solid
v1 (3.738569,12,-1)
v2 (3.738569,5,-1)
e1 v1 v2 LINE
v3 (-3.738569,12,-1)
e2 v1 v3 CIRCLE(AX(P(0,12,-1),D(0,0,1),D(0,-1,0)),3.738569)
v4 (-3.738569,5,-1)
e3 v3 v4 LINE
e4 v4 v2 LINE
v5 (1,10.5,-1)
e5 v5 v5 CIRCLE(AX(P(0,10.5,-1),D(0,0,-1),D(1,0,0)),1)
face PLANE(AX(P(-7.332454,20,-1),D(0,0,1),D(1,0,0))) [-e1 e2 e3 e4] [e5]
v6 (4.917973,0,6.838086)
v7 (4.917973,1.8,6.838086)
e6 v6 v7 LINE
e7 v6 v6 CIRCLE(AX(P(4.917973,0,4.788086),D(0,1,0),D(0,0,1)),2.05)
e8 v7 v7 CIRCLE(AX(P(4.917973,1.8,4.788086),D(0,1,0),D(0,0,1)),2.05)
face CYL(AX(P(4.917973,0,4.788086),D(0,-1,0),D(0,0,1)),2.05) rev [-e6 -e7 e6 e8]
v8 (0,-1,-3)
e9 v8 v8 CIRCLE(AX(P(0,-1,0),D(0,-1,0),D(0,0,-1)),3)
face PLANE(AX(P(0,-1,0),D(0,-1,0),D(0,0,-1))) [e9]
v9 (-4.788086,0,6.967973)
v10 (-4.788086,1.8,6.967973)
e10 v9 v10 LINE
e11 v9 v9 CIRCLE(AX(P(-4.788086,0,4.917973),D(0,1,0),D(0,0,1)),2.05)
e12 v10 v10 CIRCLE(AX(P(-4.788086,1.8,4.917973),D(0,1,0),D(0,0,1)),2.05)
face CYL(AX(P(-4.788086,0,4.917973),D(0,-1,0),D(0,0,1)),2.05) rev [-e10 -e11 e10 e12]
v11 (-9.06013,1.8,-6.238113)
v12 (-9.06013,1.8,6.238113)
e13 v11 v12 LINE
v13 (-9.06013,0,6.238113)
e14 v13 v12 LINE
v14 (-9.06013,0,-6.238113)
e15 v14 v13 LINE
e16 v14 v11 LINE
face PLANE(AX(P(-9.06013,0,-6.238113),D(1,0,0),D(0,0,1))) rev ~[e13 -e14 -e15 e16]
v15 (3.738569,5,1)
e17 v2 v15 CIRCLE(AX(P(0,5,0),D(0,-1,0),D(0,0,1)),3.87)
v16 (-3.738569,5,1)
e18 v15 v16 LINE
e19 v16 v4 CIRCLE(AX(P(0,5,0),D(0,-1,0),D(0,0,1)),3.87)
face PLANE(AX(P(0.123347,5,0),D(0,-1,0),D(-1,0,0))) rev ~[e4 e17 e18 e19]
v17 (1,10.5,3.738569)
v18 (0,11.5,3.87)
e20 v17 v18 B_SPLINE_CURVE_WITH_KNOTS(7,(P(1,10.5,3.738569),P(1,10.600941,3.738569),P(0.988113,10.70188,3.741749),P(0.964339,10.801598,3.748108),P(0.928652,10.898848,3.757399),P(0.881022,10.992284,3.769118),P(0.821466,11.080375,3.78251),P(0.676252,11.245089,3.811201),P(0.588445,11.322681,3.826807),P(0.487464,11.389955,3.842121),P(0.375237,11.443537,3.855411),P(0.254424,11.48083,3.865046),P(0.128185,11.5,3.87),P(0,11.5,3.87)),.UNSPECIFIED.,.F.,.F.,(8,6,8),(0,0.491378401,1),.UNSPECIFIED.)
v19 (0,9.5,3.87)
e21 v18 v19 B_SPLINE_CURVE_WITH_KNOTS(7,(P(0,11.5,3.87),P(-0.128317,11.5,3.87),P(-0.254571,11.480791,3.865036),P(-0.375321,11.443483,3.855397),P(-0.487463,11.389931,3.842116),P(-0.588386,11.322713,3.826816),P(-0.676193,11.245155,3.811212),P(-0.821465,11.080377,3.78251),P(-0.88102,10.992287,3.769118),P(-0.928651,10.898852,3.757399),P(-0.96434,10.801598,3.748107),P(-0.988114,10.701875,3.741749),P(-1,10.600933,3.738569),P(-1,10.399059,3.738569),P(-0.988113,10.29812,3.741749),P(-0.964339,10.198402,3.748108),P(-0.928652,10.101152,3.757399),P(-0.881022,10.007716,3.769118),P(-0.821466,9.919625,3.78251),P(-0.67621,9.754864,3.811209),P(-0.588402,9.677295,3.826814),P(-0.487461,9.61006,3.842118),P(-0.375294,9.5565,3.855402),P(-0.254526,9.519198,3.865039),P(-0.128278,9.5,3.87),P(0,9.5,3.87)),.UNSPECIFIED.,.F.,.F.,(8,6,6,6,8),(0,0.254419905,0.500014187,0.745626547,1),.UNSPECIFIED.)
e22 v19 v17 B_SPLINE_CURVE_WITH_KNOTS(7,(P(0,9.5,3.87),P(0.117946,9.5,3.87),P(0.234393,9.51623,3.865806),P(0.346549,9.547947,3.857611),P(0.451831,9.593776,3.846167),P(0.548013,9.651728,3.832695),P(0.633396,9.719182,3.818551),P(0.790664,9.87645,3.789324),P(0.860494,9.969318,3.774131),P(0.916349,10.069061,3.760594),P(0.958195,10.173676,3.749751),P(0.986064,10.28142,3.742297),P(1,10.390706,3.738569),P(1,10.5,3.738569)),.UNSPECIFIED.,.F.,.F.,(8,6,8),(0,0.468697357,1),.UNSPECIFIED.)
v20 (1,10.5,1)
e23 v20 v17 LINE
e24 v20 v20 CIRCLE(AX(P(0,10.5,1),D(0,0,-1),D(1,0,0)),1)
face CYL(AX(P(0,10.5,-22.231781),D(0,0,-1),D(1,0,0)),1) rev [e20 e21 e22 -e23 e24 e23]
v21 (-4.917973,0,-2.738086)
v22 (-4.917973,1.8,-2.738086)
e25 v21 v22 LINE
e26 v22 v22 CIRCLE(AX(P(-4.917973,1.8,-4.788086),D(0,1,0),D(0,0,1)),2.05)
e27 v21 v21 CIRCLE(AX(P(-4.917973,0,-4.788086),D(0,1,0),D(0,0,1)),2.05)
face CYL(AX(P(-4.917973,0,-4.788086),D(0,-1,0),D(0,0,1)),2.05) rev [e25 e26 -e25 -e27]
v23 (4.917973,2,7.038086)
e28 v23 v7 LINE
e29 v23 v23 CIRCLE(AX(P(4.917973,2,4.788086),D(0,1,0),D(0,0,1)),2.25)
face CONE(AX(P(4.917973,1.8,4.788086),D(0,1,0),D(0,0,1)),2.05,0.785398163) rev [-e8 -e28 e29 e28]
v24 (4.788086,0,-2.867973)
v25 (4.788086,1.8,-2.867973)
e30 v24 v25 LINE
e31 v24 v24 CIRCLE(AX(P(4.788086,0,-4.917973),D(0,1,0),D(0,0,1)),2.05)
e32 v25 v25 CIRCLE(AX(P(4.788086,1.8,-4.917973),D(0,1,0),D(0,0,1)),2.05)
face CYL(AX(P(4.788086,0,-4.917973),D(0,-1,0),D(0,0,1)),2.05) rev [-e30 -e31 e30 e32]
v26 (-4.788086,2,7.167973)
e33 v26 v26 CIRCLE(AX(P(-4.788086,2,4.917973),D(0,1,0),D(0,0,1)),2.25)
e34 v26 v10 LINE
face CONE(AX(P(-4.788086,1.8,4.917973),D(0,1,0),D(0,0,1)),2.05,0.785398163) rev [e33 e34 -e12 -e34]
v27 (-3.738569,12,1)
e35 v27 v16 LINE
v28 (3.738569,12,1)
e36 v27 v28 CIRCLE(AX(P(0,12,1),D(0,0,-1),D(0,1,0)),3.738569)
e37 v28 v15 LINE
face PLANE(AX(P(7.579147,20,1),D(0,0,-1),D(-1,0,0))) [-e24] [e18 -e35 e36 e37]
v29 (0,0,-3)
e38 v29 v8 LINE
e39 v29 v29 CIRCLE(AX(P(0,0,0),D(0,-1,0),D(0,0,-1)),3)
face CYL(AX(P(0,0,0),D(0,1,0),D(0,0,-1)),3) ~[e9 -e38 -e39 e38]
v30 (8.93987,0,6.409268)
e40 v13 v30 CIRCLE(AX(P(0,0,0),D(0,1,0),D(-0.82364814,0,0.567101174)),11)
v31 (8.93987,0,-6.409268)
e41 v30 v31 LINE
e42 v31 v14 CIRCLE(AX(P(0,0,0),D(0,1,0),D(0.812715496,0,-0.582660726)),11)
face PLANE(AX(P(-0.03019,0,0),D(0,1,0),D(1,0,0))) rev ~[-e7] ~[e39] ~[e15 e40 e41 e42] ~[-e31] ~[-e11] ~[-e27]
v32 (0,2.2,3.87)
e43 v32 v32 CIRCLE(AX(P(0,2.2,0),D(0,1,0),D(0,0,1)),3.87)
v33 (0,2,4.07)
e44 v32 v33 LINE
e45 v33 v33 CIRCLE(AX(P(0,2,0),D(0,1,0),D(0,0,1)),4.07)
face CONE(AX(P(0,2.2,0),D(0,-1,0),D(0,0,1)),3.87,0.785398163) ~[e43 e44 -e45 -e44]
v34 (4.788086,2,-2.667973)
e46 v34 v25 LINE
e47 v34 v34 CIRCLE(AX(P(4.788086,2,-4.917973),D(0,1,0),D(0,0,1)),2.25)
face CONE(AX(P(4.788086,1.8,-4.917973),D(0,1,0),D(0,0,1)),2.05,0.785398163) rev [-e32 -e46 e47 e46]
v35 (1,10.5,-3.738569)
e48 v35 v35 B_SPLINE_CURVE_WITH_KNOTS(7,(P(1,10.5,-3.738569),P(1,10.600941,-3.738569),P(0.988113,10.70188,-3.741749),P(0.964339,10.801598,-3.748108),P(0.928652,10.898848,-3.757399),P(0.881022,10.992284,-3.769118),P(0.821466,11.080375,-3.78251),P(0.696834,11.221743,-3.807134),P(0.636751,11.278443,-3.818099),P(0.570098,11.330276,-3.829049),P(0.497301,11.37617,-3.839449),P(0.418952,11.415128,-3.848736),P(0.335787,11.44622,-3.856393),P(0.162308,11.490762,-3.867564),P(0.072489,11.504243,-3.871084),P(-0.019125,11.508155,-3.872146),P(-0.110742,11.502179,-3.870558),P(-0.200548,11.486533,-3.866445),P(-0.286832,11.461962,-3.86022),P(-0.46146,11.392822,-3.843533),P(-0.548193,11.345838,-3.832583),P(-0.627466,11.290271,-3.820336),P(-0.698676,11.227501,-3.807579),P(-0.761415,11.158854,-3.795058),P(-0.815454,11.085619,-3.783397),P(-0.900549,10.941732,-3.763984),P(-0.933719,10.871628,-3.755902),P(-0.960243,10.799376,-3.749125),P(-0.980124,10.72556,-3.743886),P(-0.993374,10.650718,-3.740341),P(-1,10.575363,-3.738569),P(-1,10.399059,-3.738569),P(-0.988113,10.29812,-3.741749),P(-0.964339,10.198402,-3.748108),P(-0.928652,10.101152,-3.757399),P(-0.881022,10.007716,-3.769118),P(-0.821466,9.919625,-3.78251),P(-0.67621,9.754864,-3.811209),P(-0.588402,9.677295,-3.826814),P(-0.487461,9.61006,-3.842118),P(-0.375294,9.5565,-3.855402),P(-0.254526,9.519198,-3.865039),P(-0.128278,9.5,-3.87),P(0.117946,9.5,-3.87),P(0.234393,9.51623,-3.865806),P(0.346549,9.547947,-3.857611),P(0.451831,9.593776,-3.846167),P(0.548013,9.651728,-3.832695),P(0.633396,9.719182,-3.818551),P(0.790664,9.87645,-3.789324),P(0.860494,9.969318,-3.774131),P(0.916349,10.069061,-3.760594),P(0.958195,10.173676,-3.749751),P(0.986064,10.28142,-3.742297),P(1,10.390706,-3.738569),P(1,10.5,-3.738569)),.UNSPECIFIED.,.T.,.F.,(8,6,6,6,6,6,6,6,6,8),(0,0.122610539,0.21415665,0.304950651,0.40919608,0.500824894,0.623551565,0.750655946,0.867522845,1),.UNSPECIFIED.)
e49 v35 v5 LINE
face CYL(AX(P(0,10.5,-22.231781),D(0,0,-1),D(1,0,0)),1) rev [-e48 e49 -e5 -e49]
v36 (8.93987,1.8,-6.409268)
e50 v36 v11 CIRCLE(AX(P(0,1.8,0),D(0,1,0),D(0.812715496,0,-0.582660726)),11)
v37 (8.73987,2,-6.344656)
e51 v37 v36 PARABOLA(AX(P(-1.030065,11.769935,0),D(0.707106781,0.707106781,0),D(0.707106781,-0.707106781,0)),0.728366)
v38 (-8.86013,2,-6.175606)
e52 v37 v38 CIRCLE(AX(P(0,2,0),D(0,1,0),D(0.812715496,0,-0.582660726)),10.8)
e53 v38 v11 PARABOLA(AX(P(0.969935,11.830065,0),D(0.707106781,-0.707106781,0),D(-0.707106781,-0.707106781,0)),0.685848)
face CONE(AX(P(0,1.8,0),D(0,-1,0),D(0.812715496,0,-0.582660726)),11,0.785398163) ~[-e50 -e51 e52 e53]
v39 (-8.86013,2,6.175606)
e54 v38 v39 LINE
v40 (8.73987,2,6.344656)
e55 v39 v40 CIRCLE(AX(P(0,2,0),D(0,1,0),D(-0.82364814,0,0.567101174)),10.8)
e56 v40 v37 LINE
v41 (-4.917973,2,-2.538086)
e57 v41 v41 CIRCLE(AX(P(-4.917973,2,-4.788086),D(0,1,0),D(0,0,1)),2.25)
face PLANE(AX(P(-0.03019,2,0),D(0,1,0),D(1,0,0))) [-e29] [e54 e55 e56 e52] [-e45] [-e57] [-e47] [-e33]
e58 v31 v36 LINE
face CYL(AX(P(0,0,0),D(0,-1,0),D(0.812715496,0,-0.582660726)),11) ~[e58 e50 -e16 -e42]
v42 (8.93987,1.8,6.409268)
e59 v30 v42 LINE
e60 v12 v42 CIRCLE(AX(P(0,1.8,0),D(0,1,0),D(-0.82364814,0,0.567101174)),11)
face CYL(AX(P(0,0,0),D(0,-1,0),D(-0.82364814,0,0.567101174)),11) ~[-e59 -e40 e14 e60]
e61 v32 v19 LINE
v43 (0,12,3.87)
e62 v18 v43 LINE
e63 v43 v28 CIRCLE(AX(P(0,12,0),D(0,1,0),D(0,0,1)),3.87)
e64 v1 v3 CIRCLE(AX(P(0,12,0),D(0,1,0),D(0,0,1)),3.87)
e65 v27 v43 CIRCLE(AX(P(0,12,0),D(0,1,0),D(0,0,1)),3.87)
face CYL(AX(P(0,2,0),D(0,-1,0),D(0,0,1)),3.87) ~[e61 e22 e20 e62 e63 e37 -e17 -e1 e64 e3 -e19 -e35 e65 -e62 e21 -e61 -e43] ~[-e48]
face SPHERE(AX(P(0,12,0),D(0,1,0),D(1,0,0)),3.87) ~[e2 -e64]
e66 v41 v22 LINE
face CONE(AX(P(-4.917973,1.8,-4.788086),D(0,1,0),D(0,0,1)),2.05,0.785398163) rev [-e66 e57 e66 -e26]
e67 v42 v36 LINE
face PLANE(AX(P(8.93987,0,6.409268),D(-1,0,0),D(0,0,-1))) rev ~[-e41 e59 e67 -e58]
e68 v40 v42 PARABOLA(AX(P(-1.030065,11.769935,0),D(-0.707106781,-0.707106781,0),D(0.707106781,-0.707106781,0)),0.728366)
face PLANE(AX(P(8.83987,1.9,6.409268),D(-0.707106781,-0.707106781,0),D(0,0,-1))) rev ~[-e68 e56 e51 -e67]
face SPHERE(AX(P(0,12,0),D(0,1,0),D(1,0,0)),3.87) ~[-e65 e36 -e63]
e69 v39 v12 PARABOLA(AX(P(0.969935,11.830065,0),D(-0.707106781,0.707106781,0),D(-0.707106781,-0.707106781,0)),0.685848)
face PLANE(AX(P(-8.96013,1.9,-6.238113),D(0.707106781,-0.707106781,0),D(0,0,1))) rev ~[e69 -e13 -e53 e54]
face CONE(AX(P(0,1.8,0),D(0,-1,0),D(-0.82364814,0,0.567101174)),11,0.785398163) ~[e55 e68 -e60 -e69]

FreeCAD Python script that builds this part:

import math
import FreeCAD as App
import Part
import Sketcher
from FreeCAD import Vector
Q = App.Units.Quantity


def edges_at(feature, points):
    """Names of the edges that pass closest to the given points."""
    edges = feature.Shape.Edges
    near = lambda p: min(range(len(edges)), key=lambda i: edges[i].distToShape(Part.Vertex(*p))[0])
    return sorted({f"Edge{near(p) + 1}" for p in points})

doc = App.newDocument("Part")
params = doc.addObject("Spreadsheet::Sheet", "Params")
for row, (alias, value) in enumerate([
    ("sketch1_radius", "11 mm"),
    ("sketch1_diameter", "4.1 mm"),
    ("pad1_length", "2 mm"),
    ("sketch2_diameter", "7.74 mm"),
    ("pad2_length", "10 mm"),
    ("sketch3_radius", "3.87 mm"),
    ("revolution_angle", "360 deg"),
    ("sketch4_diameter", "6 mm"),
    ("pad3_length", "1 mm"),
    ("sketch5_radius", "1 mm"),
    ("pocket1_length", "15 mm"),
    ("sketch6_diameter", "2 mm"),
    ("chamfer_size", "0.2 mm"),
], start=1):
    params.set(f"A{row}", alias)
    params.set(f"B{row}", "=" + value)
    params.setAlias(f"B{row}", alias)

body = doc.addObject("PartDesign::Body", "Body")

sketch1 = body.newObject("Sketcher::SketchObject", "Sketch")
sketch1.AttachmentSupport = (doc.getObject("XZ_Plane"), [""])
sketch1.MapMode = "FlatFace"
sketch1.addGeometry(Part.LineSegment(Vector(-9.06013, -6.238113, 0), Vector(-9.06013, 6.238113, 0)), False)
sketch1.addGeometry(Part.ArcOfCircle(Part.Circle(Vector(0, 0, 0), Vector(0, 0, 1), 11), math.radians(35.637902), math.radians(145.451672)), False)
sketch1.addGeometry(Part.LineSegment(Vector(8.93987, 6.409268, 0), Vector(8.93987, -6.409268, 0)), False)
sketch1.addGeometry(Part.ArcOfCircle(Part.Circle(Vector(0, 0, 0), Vector(0, 0, 1), 11), math.radians(-145.451672), math.radians(-35.637902)), False)
sketch1.addGeometry(Part.Circle(Vector(-4.788086, 4.917973, 0), Vector(0, 0, 1), 2.05), False)
sketch1.addGeometry(Part.Circle(Vector(4.917973, 4.788086, 0), Vector(0, 0, 1), 2.05), False)
sketch1.addGeometry(Part.Circle(Vector(-4.917973, -4.788086, 0), Vector(0, 0, 1), 2.05), False)
sketch1.addGeometry(Part.Circle(Vector(4.788086, -4.917973, 0), Vector(0, 0, 1), 2.05), False)
sketch1.addConstraint(Sketcher.Constraint("Coincident", 0, 2, 1, 2))
sketch1.addConstraint(Sketcher.Constraint("Coincident", 1, 1, 2, 1))
sketch1.addConstraint(Sketcher.Constraint("Coincident", 2, 2, 3, 2))
sketch1.addConstraint(Sketcher.Constraint("Coincident", 3, 1, 0, 1))
sketch1.addConstraint(Sketcher.Constraint("Vertical", 0))
sketch1.addConstraint(Sketcher.Constraint("Vertical", 2))
sketch1.addConstraint(Sketcher.Constraint("Coincident", 1, 3, -1, 1))
sketch1.addConstraint(Sketcher.Constraint("Coincident", 3, 3, -1, 1))
sketch1.addConstraint(Sketcher.Constraint("Equal", 1, 3))
sketch1.addConstraint(Sketcher.Constraint("Equal", 4, 5))
sketch1.addConstraint(Sketcher.Constraint("Equal", 5, 6))
sketch1.addConstraint(Sketcher.Constraint("Equal", 6, 7))
sketch1.addConstraint(Sketcher.Constraint("Symmetric", 5, 3, 6, 3, -1, 1))
sketch1.addConstraint(Sketcher.Constraint("Symmetric", 4, 3, 7, 3, -1, 1))
sketch1.addConstraint(Sketcher.Constraint("Radius", 1, Q("11 mm")))
sketch1.addConstraint(Sketcher.Constraint("Diameter", 4, Q("4.1 mm")))
sketch1.addConstraint(Sketcher.Constraint("DistanceY", 6, 3, 0, 2, Q("11.026199 mm")))
sketch1.addConstraint(Sketcher.Constraint("DistanceY", 0, 1, 0, 2, Q("12.476226 mm")))
sketch1.addConstraint(Sketcher.Constraint("DistanceY", 2, 2, 2, 1, Q("12.818536 mm")))
sketch1.addConstraint(Sketcher.Constraint("DistanceX", 4, 3, 5, 3, Q("9.706059 mm")))
sketch1.addConstraint(Sketcher.Constraint("DistanceY", 6, 3, 4, 3, Q("9.706059 mm")))
sketch1.addConstraint(Sketcher.Constraint("DistanceX", 4, 3, -1, 1, Q("4.788086 mm")))
sketch1.setExpression("Constraints[14]", "Params.sketch1_radius")
sketch1.setExpression("Constraints[15]", "Params.sketch1_diameter")
pad1 = body.newObject("PartDesign::Pad", "Pad")
pad1.Profile = sketch1
pad1.setExpression("Length", "Params.pad1_length")
pad1.Reversed = True

sketch2 = body.newObject("Sketcher::SketchObject", "Sketch001")
sketch2.AttachmentSupport = (doc.getObject("XZ_Plane"), [""])
sketch2.MapMode = "FlatFace"
sketch2.AttachmentOffset = App.Placement(Vector(0, 0, -2), App.Rotation())
sketch2.addGeometry(Part.Circle(Vector(0, 0, 0), Vector(0, 0, 1), 3.87), False)
sketch2.addConstraint(Sketcher.Constraint("Coincident", 0, 3, -1, 1))
sketch2.addConstraint(Sketcher.Constraint("Diameter", 0, Q("7.74 mm")))
sketch2.setExpression("Constraints[1]", "Params.sketch2_diameter")
pad2 = body.newObject("PartDesign::Pad", "Pad001")
pad2.Profile = sketch2
pad2.setExpression("Length", "Params.pad2_length")
pad2.Reversed = True

sketch3 = body.newObject("Sketcher::SketchObject", "Sketch002")
sketch3.AttachmentSupport = (doc.getObject("XY_Plane"), [""])
sketch3.MapMode = "FlatFace"
sketch3.addGeometry(Part.LineSegment(Vector(0, 15.87, 0), Vector(0, 12, 0)), False)
sketch3.addGeometry(Part.LineSegment(Vector(0, 12, 0), Vector(3.87, 12, 0)), False)
sketch3.addGeometry(Part.ArcOfCircle(Part.Circle(Vector(0, 12, 0), Vector(0, 0, 1), 3.87), math.radians(0), math.radians(90)), False)
sketch3.addConstraint(Sketcher.Constraint("Coincident", 0, 2, 1, 1))
sketch3.addConstraint(Sketcher.Constraint("Coincident", 1, 2, 2, 1))
sketch3.addConstraint(Sketcher.Constraint("Coincident", 2, 2, 0, 1))
sketch3.addConstraint(Sketcher.Constraint("Vertical", 0))
sketch3.addConstraint(Sketcher.Constraint("Horizontal", 1))
sketch3.addConstraint(Sketcher.Constraint("Coincident", 0, 2, 2, 3))
sketch3.addConstraint(Sketcher.Constraint("PointOnObject", 2, 3, -2))
sketch3.addConstraint(Sketcher.Constraint("Radius", 2, Q("3.87 mm")))
sketch3.addConstraint(Sketcher.Constraint("DistanceY", -1, 1, 2, 3, Q("12 mm")))
sketch3.setExpression("Constraints[7]", "Params.sketch3_radius")
revolution = body.newObject("PartDesign::Revolution", "Revolution")
revolution.Profile = sketch3
revolution.ReferenceAxis = (sketch3, ["V_Axis"])
revolution.setExpression("Angle", "Params.revolution_angle")

sketch4 = body.newObject("Sketcher::SketchObject", "Sketch003")
sketch4.AttachmentSupport = (doc.getObject("XZ_Plane"), [""])
sketch4.MapMode = "FlatFace"
sketch4.addGeometry(Part.Circle(Vector(0, 0, 0), Vector(0, 0, 1), 3), False)
sketch4.addConstraint(Sketcher.Constraint("Coincident", 0, 3, -1, 1))
sketch4.addConstraint(Sketcher.Constraint("Diameter", 0, Q("6 mm")))
sketch4.setExpression("Constraints[1]", "Params.sketch4_diameter")
pad3 = body.newObject("PartDesign::Pad", "Pad002")
pad3.Profile = sketch4
pad3.setExpression("Length", "Params.pad3_length")

sketch5 = body.newObject("Sketcher::SketchObject", "Sketch004")
sketch5.AttachmentSupport = (doc.getObject("XZ_Plane"), [""])
sketch5.MapMode = "FlatFace"
sketch5.AttachmentOffset = App.Placement(Vector(0, 0, -20), App.Rotation())
sketch5.addGeometry(Part.LineSegment(Vector(7.579147, -1, 0), Vector(-7.332454, -1, 0)), False)
sketch5.addGeometry(Part.ArcOfCircle(Part.Circle(Vector(-7.332454, 0, 0), Vector(0, 0, 1), 1), math.radians(90), math.radians(270)), False)
sketch5.addGeometry(Part.LineSegment(Vector(-7.332454, 1, 0), Vector(7.579147, 1, 0)), False)
sketch5.addGeometry(Part.ArcOfCircle(Part.Circle(Vector(7.579147, 0, 0), Vector(0, 0, 1), 1), math.radians(-90), math.radians(90)), False)
sketch5.addConstraint(Sketcher.Constraint("Tangent", 0, 2, 1, 2))
sketch5.addConstraint(Sketcher.Constraint("Tangent", 1, 1, 2, 1))
sketch5.addConstraint(Sketcher.Constraint("Tangent", 2, 2, 3, 2))
sketch5.addConstraint(Sketcher.Constraint("Tangent", 3, 1, 0, 1))
sketch5.addConstraint(Sketcher.Constraint("Horizontal", 0))
sketch5.addConstraint(Sketcher.Constraint("Horizontal", 2))
sketch5.addConstraint(Sketcher.Constraint("PointOnObject", 1, 3, -1))
sketch5.addConstraint(Sketcher.Constraint("Radius", 1, Q("1 mm")))
sketch5.addConstraint(Sketcher.Constraint("DistanceX", 0, 2, 0, 1, Q("14.911602 mm")))
sketch5.addConstraint(Sketcher.Constraint("DistanceX", 1, 3, -1, 1, Q("7.332454 mm")))
sketch5.setExpression("Constraints[7]", "Params.sketch5_radius")
pocket1 = body.newObject("PartDesign::Pocket", "Pocket")
pocket1.Profile = sketch5
pocket1.setExpression("Length", "Params.pocket1_length")
pocket1.Reversed = True

sketch6 = body.newObject("Sketcher::SketchObject", "Sketch005")
sketch6.AttachmentSupport = (doc.getObject("XY_Plane"), [""])
sketch6.MapMode = "FlatFace"
sketch6.addGeometry(Part.Circle(Vector(0, 10.5, 0), Vector(0, 0, 1), 1), False)
sketch6.addConstraint(Sketcher.Constraint("PointOnObject", 0, 3, -2))
sketch6.addConstraint(Sketcher.Constraint("Diameter", 0, Q("2 mm")))
sketch6.addConstraint(Sketcher.Constraint("DistanceY", -1, 1, 0, 3, Q("10.5 mm")))
sketch6.setExpression("Constraints[1]", "Params.sketch6_diameter")
pocket2 = body.newObject("PartDesign::Pocket", "Pocket001")
pocket2.Profile = sketch6
pocket2.Type = "ThroughAll"
pocket2.Midplane = True
doc.recompute()

chamfer = body.newObject("PartDesign::Chamfer", "Chamfer")
chamfer.Base = (pocket2, edges_at(pocket2, [
    (-4.918, 2, -6.838),
    (-0.105, 2, 11),
    (4.788, 2, -6.968),
    (8.94, 2, 0),
    (4.918, 2, 2.738),
    (-4.788, 2, 2.868),
    (0, 2, -3.87),
    (-0.105, 2, -11),
    (-9.06, 2, 0),
]))
chamfer.setExpression("Size", "Params.chamfer_size")

doc.recompute()
